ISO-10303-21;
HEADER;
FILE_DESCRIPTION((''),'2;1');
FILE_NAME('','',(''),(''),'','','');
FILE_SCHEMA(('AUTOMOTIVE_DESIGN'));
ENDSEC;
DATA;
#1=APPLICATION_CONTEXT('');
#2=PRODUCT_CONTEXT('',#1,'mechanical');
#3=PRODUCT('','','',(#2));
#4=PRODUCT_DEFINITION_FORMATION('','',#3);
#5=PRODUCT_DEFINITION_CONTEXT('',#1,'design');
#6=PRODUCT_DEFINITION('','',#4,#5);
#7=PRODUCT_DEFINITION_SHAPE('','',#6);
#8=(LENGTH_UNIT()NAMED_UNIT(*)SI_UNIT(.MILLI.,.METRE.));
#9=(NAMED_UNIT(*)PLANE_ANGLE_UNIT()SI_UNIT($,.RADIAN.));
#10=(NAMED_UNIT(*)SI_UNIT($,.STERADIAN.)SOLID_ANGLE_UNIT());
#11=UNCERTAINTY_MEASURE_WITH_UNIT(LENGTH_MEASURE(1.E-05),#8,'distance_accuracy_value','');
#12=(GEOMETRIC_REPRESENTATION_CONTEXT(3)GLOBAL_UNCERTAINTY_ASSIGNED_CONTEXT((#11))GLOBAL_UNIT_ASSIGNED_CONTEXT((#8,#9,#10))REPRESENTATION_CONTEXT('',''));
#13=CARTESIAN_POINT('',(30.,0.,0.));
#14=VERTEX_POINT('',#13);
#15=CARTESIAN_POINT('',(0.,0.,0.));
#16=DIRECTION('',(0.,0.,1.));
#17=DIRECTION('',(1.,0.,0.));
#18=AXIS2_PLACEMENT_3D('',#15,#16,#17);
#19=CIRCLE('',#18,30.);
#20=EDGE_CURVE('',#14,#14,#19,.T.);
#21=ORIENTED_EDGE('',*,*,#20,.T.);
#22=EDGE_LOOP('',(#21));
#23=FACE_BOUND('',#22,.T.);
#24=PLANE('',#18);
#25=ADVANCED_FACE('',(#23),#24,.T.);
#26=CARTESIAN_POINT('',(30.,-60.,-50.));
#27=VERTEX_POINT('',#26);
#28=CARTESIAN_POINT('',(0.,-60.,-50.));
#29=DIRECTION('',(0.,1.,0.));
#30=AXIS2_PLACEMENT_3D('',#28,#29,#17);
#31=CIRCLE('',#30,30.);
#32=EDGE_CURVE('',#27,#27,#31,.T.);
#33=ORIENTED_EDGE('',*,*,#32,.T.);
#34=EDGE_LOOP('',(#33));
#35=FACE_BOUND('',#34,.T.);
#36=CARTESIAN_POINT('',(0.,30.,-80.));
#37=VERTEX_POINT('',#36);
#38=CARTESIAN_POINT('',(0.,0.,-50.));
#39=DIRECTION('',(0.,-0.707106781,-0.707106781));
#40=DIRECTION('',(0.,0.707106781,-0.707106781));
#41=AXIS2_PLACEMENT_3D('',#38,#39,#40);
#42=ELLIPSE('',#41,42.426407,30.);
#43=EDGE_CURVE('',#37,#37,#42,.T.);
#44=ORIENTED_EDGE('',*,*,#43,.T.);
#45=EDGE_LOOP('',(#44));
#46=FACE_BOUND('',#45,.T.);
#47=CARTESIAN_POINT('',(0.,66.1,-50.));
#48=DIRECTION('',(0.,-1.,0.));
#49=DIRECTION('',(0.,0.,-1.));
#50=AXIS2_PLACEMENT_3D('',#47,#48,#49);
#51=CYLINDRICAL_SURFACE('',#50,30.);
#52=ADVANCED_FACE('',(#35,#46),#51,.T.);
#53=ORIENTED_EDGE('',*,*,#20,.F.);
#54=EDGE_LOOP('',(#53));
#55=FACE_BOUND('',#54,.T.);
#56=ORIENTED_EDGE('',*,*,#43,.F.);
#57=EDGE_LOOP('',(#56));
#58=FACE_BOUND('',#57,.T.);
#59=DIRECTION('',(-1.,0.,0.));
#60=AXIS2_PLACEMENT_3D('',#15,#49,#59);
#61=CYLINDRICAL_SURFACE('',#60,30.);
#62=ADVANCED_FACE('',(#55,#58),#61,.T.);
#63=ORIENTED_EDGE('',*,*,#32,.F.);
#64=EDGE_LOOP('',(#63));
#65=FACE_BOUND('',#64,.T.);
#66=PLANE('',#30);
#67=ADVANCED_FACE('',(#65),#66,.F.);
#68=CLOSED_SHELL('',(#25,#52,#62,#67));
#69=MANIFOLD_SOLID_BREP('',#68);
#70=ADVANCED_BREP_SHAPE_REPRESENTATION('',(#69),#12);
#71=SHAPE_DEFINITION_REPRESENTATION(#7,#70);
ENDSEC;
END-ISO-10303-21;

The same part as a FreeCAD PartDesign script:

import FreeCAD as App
import Part
import Sketcher
from FreeCAD import Vector

doc = App.newDocument("Part")
body = doc.addObject("PartDesign::Body", "Body")

# Sketch on XY plane
sketch1 = body.newObject("Sketcher::SketchObject", "Sketch")
sketch1.AttachmentSupport = (doc.getObject("XY_Plane"), [""])
sketch1.MapMode = "FlatFace"
sketch1.addGeometry(Part.Circle(Vector(0, 0, 0), Vector(0, 0, 1), 30), False)
sketch1.addConstraint([
    Sketcher.Constraint("Coincident", 0, 3, -1, 1),
    Sketcher.Constraint("Diameter", 0, 60.0),
])

# Sketch on YZ plane
sketch2 = body.newObject("Sketcher::SketchObject", "Sketch001")
sketch2.AttachmentSupport = (doc.getObject("YZ_Plane"), [""])
sketch2.MapMode = "FlatFace"
sketch2.addGeometry([
    Part.LineSegment(Vector(0, 0, 0), Vector(0, -50, 0)),
    Part.LineSegment(Vector(0, -50, 0), Vector(-60, -50, 0)),
], False)
sketch2.addConstraint([
    Sketcher.Constraint("Coincident", 0, 2, 1, 1),
    Sketcher.Constraint("Vertical", 0),
    Sketcher.Constraint("Horizontal", 1),
    Sketcher.Constraint("Coincident", 0, 1, -1, 1),
    Sketcher.Constraint("DistanceX", 1, 2, 1, 1, 60.0),
    Sketcher.Constraint("DistanceY", 0, 2, 0, 1, 50.0),
])
doc.recompute()

additivepipe = body.newObject("PartDesign::AdditivePipe", "AdditivePipe")
additivepipe.Profile = sketch1
additivepipe.Spine = (sketch2, ["Edge1", "Edge2"])
additivepipe.Transition = "Right corner"

doc.recompute()
